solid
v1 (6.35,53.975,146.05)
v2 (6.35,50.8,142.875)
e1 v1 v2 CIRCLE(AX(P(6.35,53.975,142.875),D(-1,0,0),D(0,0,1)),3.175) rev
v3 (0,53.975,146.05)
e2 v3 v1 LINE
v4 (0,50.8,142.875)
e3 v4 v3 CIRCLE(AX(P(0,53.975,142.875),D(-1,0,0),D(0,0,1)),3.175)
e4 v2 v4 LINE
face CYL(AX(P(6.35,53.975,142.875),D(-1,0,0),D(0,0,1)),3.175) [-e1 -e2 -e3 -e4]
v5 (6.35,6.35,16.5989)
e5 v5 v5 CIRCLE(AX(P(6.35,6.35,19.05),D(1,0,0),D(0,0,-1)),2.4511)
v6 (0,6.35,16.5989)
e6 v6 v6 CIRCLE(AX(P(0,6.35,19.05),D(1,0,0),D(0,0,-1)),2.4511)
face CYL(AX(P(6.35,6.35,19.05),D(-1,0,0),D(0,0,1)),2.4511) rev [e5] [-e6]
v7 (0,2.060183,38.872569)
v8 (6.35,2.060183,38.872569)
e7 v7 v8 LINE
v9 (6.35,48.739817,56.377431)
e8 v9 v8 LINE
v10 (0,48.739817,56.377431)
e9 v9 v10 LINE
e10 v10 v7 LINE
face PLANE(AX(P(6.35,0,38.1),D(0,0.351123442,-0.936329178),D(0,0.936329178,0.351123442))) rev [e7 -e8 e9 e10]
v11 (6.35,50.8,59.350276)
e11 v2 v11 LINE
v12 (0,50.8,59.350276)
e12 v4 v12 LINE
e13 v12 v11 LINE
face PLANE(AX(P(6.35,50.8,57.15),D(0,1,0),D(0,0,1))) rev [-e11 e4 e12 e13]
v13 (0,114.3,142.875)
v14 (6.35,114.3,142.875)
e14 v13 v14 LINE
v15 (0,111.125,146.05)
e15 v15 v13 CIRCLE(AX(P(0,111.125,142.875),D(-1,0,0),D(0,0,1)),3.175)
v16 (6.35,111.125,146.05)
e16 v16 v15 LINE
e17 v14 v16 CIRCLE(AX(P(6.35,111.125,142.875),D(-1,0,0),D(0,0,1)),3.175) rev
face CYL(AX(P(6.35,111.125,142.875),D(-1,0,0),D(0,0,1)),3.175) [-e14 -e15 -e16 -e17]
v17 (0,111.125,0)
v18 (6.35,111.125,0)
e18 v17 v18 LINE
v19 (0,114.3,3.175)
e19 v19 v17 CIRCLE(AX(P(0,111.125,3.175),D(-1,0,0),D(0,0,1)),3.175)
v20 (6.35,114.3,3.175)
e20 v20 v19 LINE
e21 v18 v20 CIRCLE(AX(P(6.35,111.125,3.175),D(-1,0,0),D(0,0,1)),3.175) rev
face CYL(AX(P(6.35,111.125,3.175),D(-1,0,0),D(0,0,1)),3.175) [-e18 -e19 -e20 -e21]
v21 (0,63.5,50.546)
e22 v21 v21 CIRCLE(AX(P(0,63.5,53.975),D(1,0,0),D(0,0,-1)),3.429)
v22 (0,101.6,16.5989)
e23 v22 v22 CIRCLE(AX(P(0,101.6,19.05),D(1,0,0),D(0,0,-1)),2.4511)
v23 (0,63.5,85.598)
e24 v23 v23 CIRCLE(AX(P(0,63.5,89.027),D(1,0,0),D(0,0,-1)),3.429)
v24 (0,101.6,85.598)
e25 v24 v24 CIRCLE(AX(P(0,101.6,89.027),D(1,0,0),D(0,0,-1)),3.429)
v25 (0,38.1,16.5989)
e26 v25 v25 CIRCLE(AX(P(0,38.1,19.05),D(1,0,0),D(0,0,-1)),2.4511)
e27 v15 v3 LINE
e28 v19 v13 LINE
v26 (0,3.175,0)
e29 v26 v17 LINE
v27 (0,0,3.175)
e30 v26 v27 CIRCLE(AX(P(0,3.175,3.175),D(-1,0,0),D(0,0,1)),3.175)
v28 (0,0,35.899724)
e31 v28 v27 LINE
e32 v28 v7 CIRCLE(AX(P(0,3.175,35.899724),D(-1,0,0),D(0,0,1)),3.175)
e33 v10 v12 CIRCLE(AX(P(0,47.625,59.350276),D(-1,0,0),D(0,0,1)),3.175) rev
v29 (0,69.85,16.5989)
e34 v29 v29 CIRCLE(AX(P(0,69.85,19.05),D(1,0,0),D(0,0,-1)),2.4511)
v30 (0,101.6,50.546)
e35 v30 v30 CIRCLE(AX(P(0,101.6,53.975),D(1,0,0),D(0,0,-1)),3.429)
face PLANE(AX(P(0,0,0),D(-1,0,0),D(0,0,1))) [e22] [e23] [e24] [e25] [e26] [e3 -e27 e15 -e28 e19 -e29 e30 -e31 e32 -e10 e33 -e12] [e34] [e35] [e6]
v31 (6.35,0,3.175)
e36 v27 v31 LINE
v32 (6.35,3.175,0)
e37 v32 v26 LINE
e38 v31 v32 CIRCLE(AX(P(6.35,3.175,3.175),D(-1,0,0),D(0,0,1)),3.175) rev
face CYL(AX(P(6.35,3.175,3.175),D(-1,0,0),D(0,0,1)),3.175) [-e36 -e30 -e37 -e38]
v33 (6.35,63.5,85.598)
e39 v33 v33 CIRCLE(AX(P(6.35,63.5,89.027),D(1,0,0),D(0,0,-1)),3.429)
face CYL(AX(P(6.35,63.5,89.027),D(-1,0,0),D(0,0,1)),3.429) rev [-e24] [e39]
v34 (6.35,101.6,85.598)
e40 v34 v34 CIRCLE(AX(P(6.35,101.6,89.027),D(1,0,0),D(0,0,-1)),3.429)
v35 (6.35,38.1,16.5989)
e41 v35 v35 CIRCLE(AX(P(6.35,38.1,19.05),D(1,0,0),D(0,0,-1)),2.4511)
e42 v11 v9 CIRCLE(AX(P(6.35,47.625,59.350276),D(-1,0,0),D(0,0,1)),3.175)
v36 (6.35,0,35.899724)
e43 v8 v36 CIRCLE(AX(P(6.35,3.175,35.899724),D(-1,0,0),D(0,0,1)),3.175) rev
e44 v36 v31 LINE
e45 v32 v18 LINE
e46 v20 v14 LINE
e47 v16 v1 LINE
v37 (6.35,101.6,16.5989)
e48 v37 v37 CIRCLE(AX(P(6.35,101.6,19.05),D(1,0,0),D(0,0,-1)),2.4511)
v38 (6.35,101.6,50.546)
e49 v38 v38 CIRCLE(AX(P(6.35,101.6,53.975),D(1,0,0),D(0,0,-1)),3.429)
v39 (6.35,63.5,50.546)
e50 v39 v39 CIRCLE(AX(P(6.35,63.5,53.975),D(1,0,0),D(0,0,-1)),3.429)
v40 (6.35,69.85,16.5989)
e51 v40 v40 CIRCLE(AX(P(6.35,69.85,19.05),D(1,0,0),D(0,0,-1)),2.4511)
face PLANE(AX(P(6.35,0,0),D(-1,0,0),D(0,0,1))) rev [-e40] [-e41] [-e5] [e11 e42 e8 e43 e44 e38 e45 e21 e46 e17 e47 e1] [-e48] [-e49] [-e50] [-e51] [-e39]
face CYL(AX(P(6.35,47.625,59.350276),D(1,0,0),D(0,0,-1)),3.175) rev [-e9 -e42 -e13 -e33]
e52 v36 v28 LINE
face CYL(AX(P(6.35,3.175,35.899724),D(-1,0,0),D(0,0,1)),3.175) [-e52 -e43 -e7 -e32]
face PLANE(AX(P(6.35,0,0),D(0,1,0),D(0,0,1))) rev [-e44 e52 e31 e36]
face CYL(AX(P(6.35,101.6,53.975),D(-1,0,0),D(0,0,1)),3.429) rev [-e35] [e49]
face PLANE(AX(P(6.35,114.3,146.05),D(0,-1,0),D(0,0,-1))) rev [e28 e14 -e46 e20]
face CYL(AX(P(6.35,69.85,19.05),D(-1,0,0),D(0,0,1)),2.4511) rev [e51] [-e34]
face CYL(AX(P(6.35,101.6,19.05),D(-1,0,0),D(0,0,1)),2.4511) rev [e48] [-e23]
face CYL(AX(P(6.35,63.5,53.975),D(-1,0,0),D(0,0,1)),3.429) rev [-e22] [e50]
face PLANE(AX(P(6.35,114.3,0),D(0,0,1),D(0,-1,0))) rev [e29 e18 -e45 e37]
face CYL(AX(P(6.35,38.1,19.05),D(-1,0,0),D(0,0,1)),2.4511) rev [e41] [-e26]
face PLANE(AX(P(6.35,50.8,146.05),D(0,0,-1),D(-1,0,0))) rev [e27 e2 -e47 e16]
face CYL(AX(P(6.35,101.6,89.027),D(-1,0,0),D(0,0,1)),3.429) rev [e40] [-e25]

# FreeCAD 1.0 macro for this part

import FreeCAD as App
import Part
import Sketcher

V = App.Vector
Q = App.Units.Quantity


def edges_at(feature, points):
    """Names of the edges that pass closest to the given points."""
    edges = feature.Shape.Edges
    near = lambda p: min(range(len(edges)), key=lambda i: edges[i].distToShape(Part.Vertex(*p))[0])
    return sorted({f"Edge{near(p) + 1}" for p in points})

doc = App.newDocument("Part")
params = doc.addObject("Spreadsheet::Sheet", "Params")
for row, (alias, value) in enumerate([
    ("sketch1_diameter", "0.27 in"),
    ("sketch1_diameter2", "0.193 in"),
    ("sketch1_width", "4.5 in"),
    ("sketch1_width2", "2.5 in"),
    ("sketch1_height", "1.5 in"),
    ("pad1_length", "0.25 in"),
    ("fillet_radius", "0.125 in"),
], start=1):
    params.set(f"A{row}", alias)
    params.set(f"B{row}", "=" + value)
    params.setAlias(f"B{row}", alias)

body = doc.addObject("PartDesign::Body", "Body")

sketch1 = body.newObject("Sketcher::SketchObject", "Sketch")
sketch1.AttachmentSupport = (doc.getObject("YZ_Plane"), [""])
sketch1.MapMode = "FlatFace"
sketch1.addGeometry(Part.LineSegment(V(0, 38.1, 0), V(0, 0, 0)), False)
sketch1.addGeometry(Part.LineSegment(V(0, 0, 0), V(114.3, 0, 0)), False)
sketch1.addGeometry(Part.LineSegment(V(114.3, 0, 0), V(114.3, 146.1, 0)), False)
sketch1.addGeometry(Part.LineSegment(V(114.3, 146.1, 0), V(50.8, 146.1, 0)), False)
sketch1.addGeometry(Part.LineSegment(V(50.8, 146.1, 0), V(50.8, 57.1, 0)), False)
sketch1.addGeometry(Part.LineSegment(V(50.8, 57.1, 0), V(0, 38.1, 0)), False)
sketch1.addGeometry(Part.Circle(V(6.3, 19.1, 0), V(0, 0, 1), 2.5), False)
sketch1.addGeometry(Part.Circle(V(38.1, 19.1, 0), V(0, 0, 1), 2.5), False)
sketch1.addGeometry(Part.Circle(V(69.8, 19.1, 0), V(0, 0, 1), 2.5), False)
sketch1.addGeometry(Part.Circle(V(63.5, 54, 0), V(0, 0, 1), 3.4), False)
sketch1.addGeometry(Part.Circle(V(101.6, 19.1, 0), V(0, 0, 1), 2.5), False)
sketch1.addGeometry(Part.Circle(V(101.6, 54, 0), V(0, 0, 1), 3.4), False)
sketch1.addGeometry(Part.Circle(V(63.5, 89, 0), V(0, 0, 1), 3.4), False)
sketch1.addGeometry(Part.Circle(V(101.6, 89, 0), V(0, 0, 1), 3.4), False)
sketch1.addConstraint(Sketcher.Constraint("Coincident", 0, 2, 1, 1))
sketch1.addConstraint(Sketcher.Constraint("Coincident", 1, 2, 2, 1))
sketch1.addConstraint(Sketcher.Constraint("Coincident", 2, 2, 3, 1))
sketch1.addConstraint(Sketcher.Constraint("Coincident", 3, 2, 4, 1))
sketch1.addConstraint(Sketcher.Constraint("Coincident", 4, 2, 5, 1))
sketch1.addConstraint(Sketcher.Constraint("Coincident", 5, 2, 0, 1))
sketch1.addConstraint(Sketcher.Constraint("Vertical", 0))
sketch1.addConstraint(Sketcher.Constraint("Horizontal", 1))
sketch1.addConstraint(Sketcher.Constraint("Vertical", 2))
sketch1.addConstraint(Sketcher.Constraint("Horizontal", 3))
sketch1.addConstraint(Sketcher.Constraint("Vertical", 4))
sketch1.addConstraint(Sketcher.Constraint("Coincident", 0, 2, -1, 1))
sketch1.addConstraint(Sketcher.Constraint("Equal", 6, 7))
sketch1.addConstraint(Sketcher.Constraint("Equal", 7, 8))
sketch1.addConstraint(Sketcher.Constraint("Equal", 8, 10))
sketch1.addConstraint(Sketcher.Constraint("Equal", 9, 11))
sketch1.addConstraint(Sketcher.Constraint("Equal", 11, 12))
sketch1.addConstraint(Sketcher.Constraint("Equal", 12, 13))
sketch1.addConstraint(Sketcher.Constraint("Horizontal", 6, 3, 7, 3))
sketch1.addConstraint(Sketcher.Constraint("Horizontal", 7, 3, 8, 3))
sketch1.addConstraint(Sketcher.Constraint("Horizontal", 8, 3, 10, 3))
sketch1.addConstraint(Sketcher.Constraint("Horizontal", 9, 3, 11, 3))
sketch1.addConstraint(Sketcher.Constraint("Horizontal", 12, 3, 13, 3))
sketch1.addConstraint(Sketcher.Constraint("Vertical", 10, 3, 11, 3))
sketch1.addConstraint(Sketcher.Constraint("Vertical", 9, 3, 12, 3))
sketch1.addConstraint(Sketcher.Constraint("Vertical", 11, 3, 13, 3))
sketch1.addConstraint(Sketcher.Constraint("Diameter", 9, Q("0.27 in")))
sketch1.addConstraint(Sketcher.Constraint("Diameter", 6, Q("0.193 in")))
sketch1.addConstraint(Sketcher.Constraint("DistanceX", 1, 1, 1, 2, Q("4.5 in")))
sketch1.addConstraint(Sketcher.Constraint("DistanceX", 3, 2, 3, 1, Q("2.5 in")))
sketch1.addConstraint(Sketcher.Constraint("DistanceY", 0, 2, 0, 1, Q("1.5 in")))
sketch1.addConstraint(Sketcher.Constraint("DistanceY", 4, 2, 4, 1, Q("3.5 in")))
sketch1.addConstraint(Sketcher.Constraint("DistanceX", -1, 1, 10, 3, Q("4 in")))
sketch1.addConstraint(Sketcher.Constraint("DistanceX", 7, 3, 9, 3, Q("1 in")))
sketch1.addConstraint(Sketcher.Constraint("DistanceX", 9, 3, 1, 2, Q("2 in")))
sketch1.addConstraint(Sketcher.Constraint("DistanceY", 10, 3, 2, 2, Q("5 in")))
sketch1.addConstraint(Sketcher.Constraint("DistanceY", 2, 1, 2, 2, Q("5.75 in")))
sketch1.addConstraint(Sketcher.Constraint("DistanceX", 6, 3, 8, 3, Q("2.5 in")))
sketch1.addConstraint(Sketcher.Constraint("DistanceX", -1, 1, 6, 3, Q("0.25 in")))
sketch1.addConstraint(Sketcher.Constraint("DistanceY", 9, 3, 12, 3, Q("1.38 in")))
sketch1.addConstraint(Sketcher.Constraint("DistanceY", -1, 1, 9, 3, Q("2.125 in")))
sketch1.setExpression("Constraints[26]", "Params.sketch1_diameter")
sketch1.setExpression("Constraints[27]", "Params.sketch1_diameter2")
sketch1.setExpression("Constraints[28]", "Params.sketch1_width")
sketch1.setExpression("Constraints[29]", "Params.sketch1_width2")
sketch1.setExpression("Constraints[30]", "Params.sketch1_height")
pad1 = body.newObject("PartDesign::Pad", "Pad")
pad1.Profile = sketch1
pad1.setExpression("Length", "Params.pad1_length")
doc.recompute()

fillet = body.newObject("PartDesign::Fillet", "Fillet")
fillet.Base = (pad1, edges_at(pad1, [
    (3.175, 0, 0),
    (3.175, 0, 38.1),
    (3.175, 50.8, 57.15),
    (3.175, 50.8, 146.05),
    (3.175, 114.3, 146.05),
    (3.175, 114.3, 0),
]))
fillet.setExpression("Radius", "Params.fillet_radius")

doc.recompute()
